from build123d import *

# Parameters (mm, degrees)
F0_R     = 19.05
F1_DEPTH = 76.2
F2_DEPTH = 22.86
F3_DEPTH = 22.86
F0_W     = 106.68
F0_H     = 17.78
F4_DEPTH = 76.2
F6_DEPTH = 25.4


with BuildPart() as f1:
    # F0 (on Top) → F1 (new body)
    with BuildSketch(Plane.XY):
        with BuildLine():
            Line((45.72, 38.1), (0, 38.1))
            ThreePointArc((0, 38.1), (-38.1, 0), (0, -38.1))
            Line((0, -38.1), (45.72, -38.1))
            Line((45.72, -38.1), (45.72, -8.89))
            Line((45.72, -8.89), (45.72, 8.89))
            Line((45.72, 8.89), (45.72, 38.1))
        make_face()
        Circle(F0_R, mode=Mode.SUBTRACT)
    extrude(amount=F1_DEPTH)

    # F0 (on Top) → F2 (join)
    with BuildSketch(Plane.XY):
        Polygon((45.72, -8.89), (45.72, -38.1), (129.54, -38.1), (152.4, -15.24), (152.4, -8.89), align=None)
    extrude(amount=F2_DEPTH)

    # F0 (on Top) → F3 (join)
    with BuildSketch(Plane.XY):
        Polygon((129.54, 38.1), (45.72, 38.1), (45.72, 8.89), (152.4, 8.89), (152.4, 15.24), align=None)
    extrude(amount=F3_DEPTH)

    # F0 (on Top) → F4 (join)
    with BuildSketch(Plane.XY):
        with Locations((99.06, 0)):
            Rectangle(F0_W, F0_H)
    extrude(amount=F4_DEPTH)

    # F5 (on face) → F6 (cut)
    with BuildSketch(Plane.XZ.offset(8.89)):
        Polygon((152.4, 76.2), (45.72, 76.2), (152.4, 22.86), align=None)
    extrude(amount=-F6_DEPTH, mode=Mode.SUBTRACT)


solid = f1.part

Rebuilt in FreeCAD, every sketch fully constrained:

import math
import FreeCAD as App
import Part
import Sketcher

V = App.Vector
Q = App.Units.Quantity


def add_polygon(sketch, points):
    """Adds a closed chain of lines whose ends are joined by coincident constraints."""
    first, n = sketch.GeometryCount, len(points)
    for a, b in zip(points, points[1:] + points[:1]):
        sketch.addGeometry(Part.LineSegment(App.Vector(*a, 0), App.Vector(*b, 0)), False)
    for i in range(n):
        sketch.addConstraint(Sketcher.Constraint("Coincident", first + i, 2, first + (i + 1) % n, 1))

doc = App.newDocument("Part")
body = doc.addObject("PartDesign::Body", "Body")

# Sketch on XY plane
sketch1 = doc.addObject("Sketcher::SketchObject", "Sketch")
body.addObject(sketch1)
sketch1.AttachmentSupport = (doc.XY_Plane, [""])
sketch1.MapMode = "FlatFace"
sketch1.addGeometry([
    Part.LineSegment(V(46, 38, 0), V(0, 38, 0)),  # 0
    Part.ArcOfCircle(Part.Circle(V(0, 0, 0), V(0, 0, 1), 38), math.radians(90), math.radians(270)),  # 1
    Part.LineSegment(V(0, -38, 0), V(46, -38, 0)),  # 2
    Part.LineSegment(V(46, -38, 0), V(46, 38, 0)),  # 3
    Part.Circle(V(0, 0, 0), V(0, 0, 1), 19),  # 4
], False)
sketch1.addConstraint([
    Sketcher.Constraint("Tangent", 0, 2, 1, 1),
    Sketcher.Constraint("Tangent", 1, 2, 2, 1),
    Sketcher.Constraint("Coincident", 2, 2, 3, 1),
    Sketcher.Constraint("Coincident", 3, 2, 0, 1),
    Sketcher.Constraint("Horizontal", 0),
    Sketcher.Constraint("Horizontal", 2),
    Sketcher.Constraint("Vertical", 3),
    Sketcher.Constraint("Coincident", 1, 3, -1, 1),
    Sketcher.Constraint("Coincident", 4, 3, -1, 1),
    Sketcher.Constraint("Diameter", 4, Q("1.5 in")),
    Sketcher.Constraint("Radius", 1, Q("1.5 in")),
    Sketcher.Constraint("DistanceX", 0, 2, 0, 1, Q("1.8 in")),
])
pad1 = doc.addObject("PartDesign::Pad", "Pad")
body.addObject(pad1)
pad1.Profile = sketch1
pad1.Length = Q("3 in")

# Sketch on XY plane
sketch2 = doc.addObject("Sketcher::SketchObject", "Sketch001")
body.addObject(sketch2)
sketch2.AttachmentSupport = (doc.XY_Plane, [""])
sketch2.MapMode = "FlatFace"
add_polygon(sketch2, [(46, -9), (46, -38), (130, -38), (152, -15), (152, -9)])  # lines 0-4
sketch2.addConstraint([
    Sketcher.Constraint("Vertical", 0),
    Sketcher.Constraint("Horizontal", 1),
    Sketcher.Constraint("Vertical", 3),
    Sketcher.Constraint("Horizontal", 4),
    Sketcher.Constraint("DistanceX", 1, 1, 1, 2, Q("3.3 in")),
    Sketcher.Constraint("DistanceX", 4, 2, 4, 1, Q("4.2 in")),
    Sketcher.Constraint("DistanceX", -1, 1, 2, 2, Q("6 in")),
    Sketcher.Constraint("Angle", 2, Q("45 deg")),
    Sketcher.Constraint("DistanceY", 0, 2, 0, 1, Q("1.15 in")),
    Sketcher.Constraint("DistanceY", 0, 2, -1, 1, Q("1.5 in")),
])
pad2 = doc.addObject("PartDesign::Pad", "Pad001")
body.addObject(pad2)
pad2.Profile = sketch2
pad2.Length = Q("0.9 in")

# Sketch on XY plane
sketch3 = doc.addObject("Sketcher::SketchObject", "Sketch002")
body.addObject(sketch3)
sketch3.AttachmentSupport = (doc.XY_Plane, [""])
sketch3.MapMode = "FlatFace"
add_polygon(sketch3, [(130, 38), (46, 38), (46, 9), (152, 9), (152, 15)])  # lines 0-4
sketch3.addConstraint([
    Sketcher.Constraint("Horizontal", 0),
    Sketcher.Constraint("Vertical", 1),
    Sketcher.Constraint("Horizontal", 2),
    Sketcher.Constraint("Vertical", 3),
    Sketcher.Constraint("DistanceX", 0, 2, 0, 1, Q("3.3 in")),
    Sketcher.Constraint("DistanceX", 2, 1, 2, 2, Q("4.2 in")),
    Sketcher.Constraint("DistanceX", -1, 1, 2, 2, Q("6 in")),
    Sketcher.Constraint("Angle", 4, Q("135 deg")),
    Sketcher.Constraint("DistanceY", 1, 2, 1, 1, Q("1.15 in")),
    Sketcher.Constraint("DistanceY", -1, 1, 0, 2, Q("1.5 in")),
])
pad3 = doc.addObject("PartDesign::Pad", "Pad002")
body.addObject(pad3)
pad3.Profile = sketch3
pad3.Length = Q("0.9 in")

# Sketch on XY plane
sketch4 = doc.addObject("Sketcher::SketchObject", "Sketch003")
body.addObject(sketch4)
sketch4.AttachmentSupport = (doc.XY_Plane, [""])
sketch4.MapMode = "FlatFace"
add_polygon(sketch4, [(46, 9), (46, -9), (152, -9), (152, 9)])  # lines 0-3
sketch4.addConstraint([
    Sketcher.Constraint("Vertical", 0),
    Sketcher.Constraint("Horizontal", 1),
    Sketcher.Constraint("Vertical", 2),
    Sketcher.Constraint("Horizontal", 3),
    Sketcher.Constraint("DistanceX", 1, 1, 1, 2, Q("4.2 in")),
    Sketcher.Constraint("DistanceY", 0, 2, 0, 1, Q("0.7 in")),
    Sketcher.Constraint("DistanceX", -1, 1, 1, 2, Q("6 in")),
    Sketcher.Constraint("DistanceY", 0, 2, -1, 1, Q("0.35 in")),
])
pad4 = doc.addObject("PartDesign::Pad", "Pad003")
body.addObject(pad4)
pad4.Profile = sketch4
pad4.Length = Q("3 in")

# Sketch on XZ plane
sketch5 = doc.addObject("Sketcher::SketchObject", "Sketch004")
body.addObject(sketch5)
sketch5.AttachmentSupport = (doc.XZ_Plane, [""])
sketch5.MapMode = "FlatFace"
sketch5.AttachmentOffset = App.Placement(V(0, 0, 0.35 * 25.4), App.Rotation())
add_polygon(sketch5, [(152, 76), (46, 76), (152, 23)])  # lines 0-2
sketch5.addConstraint([
    Sketcher.Constraint("Horizontal", 0),
    Sketcher.Constraint("Vertical", 2),
    Sketcher.Constraint("DistanceX", 0, 2, 0, 1, Q("4.2 in")),
    Sketcher.Constraint("DistanceY", 2, 1, 2, 2, Q("2.1 in")),
    Sketcher.Constraint("DistanceY", -1, 1, 0, 2, Q("3 in")),
    Sketcher.Constraint("DistanceX", -1, 1, 1, 2, Q("6 in")),
])
pocket1 = doc.addObject("PartDesign::Pocket", "Pocket")
body.addObject(pocket1)
pocket1.Profile = sketch5
pocket1.Length = Q("1 in")

doc.recompute()
